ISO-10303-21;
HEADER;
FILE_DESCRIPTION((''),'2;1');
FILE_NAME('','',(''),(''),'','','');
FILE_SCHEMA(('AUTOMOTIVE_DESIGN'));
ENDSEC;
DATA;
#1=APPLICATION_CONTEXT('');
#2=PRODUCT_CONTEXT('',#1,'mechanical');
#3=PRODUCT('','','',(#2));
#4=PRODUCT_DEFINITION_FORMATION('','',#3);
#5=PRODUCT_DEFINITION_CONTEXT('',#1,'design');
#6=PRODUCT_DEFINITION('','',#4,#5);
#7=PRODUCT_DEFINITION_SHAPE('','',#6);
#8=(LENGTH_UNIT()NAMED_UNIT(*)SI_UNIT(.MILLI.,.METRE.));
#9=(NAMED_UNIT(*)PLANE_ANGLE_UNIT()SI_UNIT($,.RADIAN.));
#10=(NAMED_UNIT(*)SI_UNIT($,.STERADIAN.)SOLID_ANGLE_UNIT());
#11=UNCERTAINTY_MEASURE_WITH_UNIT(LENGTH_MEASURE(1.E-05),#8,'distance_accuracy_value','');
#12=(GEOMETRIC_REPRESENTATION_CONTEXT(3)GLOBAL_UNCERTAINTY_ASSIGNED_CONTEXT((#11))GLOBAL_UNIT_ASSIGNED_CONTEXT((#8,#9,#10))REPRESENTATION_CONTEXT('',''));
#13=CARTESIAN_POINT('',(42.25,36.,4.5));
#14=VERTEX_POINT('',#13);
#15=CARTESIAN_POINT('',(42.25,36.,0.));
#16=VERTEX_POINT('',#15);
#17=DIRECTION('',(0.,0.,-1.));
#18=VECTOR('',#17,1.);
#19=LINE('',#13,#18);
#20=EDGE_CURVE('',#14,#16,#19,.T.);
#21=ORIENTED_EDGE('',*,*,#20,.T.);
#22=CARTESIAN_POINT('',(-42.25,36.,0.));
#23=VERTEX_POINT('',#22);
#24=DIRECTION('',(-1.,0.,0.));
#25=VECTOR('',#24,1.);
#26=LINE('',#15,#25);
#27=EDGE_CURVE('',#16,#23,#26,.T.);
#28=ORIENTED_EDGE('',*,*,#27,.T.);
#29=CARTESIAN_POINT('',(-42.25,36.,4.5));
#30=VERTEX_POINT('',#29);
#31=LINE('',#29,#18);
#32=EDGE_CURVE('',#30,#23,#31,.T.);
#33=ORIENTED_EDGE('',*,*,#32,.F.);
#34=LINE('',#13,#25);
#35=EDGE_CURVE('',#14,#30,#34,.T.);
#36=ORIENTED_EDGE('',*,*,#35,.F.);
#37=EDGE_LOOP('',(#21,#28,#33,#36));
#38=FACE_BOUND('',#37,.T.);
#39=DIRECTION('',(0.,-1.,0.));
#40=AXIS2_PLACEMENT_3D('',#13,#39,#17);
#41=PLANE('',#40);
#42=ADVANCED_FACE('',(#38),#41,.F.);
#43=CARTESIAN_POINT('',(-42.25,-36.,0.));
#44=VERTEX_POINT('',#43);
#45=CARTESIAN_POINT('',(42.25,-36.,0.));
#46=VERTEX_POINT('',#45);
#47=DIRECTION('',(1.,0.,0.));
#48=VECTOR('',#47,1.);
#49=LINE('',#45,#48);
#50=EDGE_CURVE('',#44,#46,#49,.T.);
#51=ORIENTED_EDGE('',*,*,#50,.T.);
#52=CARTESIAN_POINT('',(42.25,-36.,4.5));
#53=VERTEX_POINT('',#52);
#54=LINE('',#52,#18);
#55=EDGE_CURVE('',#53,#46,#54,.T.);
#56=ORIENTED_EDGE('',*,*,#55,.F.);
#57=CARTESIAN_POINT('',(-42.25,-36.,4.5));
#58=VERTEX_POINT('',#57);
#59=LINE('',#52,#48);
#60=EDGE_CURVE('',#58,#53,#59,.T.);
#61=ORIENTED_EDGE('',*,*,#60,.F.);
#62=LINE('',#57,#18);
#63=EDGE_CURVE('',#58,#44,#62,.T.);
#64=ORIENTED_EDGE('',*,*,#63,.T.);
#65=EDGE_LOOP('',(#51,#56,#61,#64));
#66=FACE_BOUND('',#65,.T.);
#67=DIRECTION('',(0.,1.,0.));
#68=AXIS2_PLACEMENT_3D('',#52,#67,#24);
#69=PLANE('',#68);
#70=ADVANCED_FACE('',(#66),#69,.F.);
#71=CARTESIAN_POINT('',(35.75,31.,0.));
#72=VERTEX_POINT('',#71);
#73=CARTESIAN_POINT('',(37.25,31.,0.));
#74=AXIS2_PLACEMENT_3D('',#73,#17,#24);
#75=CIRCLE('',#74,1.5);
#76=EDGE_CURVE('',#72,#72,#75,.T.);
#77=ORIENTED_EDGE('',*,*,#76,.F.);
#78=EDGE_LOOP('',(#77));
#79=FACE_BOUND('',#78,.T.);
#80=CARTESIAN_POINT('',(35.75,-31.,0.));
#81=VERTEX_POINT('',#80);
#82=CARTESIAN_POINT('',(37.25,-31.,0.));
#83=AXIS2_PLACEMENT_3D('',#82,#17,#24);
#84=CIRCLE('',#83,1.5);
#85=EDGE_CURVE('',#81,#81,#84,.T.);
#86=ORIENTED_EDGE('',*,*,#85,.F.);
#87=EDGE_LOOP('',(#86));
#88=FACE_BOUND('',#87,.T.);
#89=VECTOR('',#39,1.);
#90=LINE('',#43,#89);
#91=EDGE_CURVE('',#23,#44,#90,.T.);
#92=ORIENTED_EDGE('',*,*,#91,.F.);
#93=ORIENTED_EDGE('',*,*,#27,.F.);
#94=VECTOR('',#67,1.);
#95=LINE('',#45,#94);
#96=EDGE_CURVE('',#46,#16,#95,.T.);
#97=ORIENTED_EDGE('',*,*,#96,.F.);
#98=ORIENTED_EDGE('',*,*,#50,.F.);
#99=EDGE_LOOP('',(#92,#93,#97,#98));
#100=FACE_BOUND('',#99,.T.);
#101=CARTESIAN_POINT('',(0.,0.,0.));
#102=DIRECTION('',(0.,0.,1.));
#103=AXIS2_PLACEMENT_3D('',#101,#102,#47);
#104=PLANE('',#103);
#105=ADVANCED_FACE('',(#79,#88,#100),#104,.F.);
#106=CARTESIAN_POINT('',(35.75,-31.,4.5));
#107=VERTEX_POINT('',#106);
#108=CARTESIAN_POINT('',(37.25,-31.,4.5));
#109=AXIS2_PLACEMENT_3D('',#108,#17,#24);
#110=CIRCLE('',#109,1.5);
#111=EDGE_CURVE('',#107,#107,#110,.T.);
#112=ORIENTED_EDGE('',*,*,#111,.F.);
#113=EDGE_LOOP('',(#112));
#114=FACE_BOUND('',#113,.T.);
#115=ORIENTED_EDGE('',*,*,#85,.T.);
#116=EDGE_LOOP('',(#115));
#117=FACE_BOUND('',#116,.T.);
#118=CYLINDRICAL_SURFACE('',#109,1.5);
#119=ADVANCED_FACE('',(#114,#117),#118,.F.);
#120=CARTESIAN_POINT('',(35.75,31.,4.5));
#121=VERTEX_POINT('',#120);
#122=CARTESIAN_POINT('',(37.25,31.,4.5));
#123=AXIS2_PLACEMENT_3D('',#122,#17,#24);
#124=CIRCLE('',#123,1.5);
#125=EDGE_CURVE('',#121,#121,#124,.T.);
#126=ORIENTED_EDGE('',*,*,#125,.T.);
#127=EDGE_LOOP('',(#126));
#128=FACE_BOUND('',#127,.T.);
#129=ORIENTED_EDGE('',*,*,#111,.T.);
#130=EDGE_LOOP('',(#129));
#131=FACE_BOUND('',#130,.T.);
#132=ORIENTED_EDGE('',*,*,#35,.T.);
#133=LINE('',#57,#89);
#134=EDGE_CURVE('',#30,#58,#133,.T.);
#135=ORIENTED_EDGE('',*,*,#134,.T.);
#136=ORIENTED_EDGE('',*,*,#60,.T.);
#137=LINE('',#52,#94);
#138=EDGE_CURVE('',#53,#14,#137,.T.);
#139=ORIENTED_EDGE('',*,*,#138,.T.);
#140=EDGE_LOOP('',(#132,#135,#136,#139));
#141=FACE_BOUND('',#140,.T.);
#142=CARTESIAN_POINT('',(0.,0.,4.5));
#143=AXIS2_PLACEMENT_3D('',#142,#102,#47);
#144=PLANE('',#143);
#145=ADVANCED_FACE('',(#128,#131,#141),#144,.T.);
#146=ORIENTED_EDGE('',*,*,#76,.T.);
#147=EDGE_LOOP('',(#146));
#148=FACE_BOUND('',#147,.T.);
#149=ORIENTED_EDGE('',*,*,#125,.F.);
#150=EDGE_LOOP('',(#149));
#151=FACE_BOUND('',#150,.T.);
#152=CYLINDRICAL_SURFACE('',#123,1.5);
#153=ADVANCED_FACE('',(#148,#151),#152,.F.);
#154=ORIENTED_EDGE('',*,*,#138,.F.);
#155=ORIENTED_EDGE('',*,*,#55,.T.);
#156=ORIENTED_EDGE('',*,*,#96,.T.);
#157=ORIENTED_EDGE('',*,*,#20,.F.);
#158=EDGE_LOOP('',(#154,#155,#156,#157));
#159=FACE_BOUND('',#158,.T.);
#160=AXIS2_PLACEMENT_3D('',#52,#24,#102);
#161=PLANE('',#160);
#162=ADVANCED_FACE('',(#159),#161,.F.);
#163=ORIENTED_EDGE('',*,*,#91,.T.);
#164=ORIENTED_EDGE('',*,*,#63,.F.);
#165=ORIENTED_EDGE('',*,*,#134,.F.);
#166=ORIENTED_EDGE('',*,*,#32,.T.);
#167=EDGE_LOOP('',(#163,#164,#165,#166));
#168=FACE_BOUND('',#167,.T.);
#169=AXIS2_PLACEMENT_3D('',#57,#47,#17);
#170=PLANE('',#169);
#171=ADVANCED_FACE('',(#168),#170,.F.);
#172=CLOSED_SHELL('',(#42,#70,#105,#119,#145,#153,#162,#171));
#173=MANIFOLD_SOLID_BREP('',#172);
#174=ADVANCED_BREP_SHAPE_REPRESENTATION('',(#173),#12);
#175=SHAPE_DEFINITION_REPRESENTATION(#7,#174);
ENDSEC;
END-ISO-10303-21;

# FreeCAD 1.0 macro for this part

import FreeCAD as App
import Part
import Sketcher

V = App.Vector


def add_polygon(sketch, points):
    """Adds a closed chain of lines whose ends are joined by coincident constraints."""
    first, n = sketch.GeometryCount, len(points)
    for a, b in zip(points, points[1:] + points[:1]):
        sketch.addGeometry(Part.LineSegment(App.Vector(*a, 0), App.Vector(*b, 0)), False)
    for i in range(n):
        sketch.addConstraint(Sketcher.Constraint("Coincident", first + i, 2, first + (i + 1) % n, 1))

doc = App.newDocument("Part")
body = doc.addObject("PartDesign::Body", "Body")

# Sketch on XY plane
sketch1 = body.newObject("Sketcher::SketchObject", "Sketch")
sketch1.AttachmentSupport = (doc.getObject("XY_Plane"), [""])
sketch1.MapMode = "FlatFace"
add_polygon(sketch1, [(-42, 36), (-42, -36), (42, -36), (42, 36)])  # lines 0-3
sketch1.addConstraint([
    Sketcher.Constraint("Vertical", 0),
    Sketcher.Constraint("Horizontal", 1),
    Sketcher.Constraint("Vertical", 2),
    Sketcher.Constraint("Horizontal", 3),
    Sketcher.Constraint("Symmetric", 0, 2, 2, 2, -1, 1),
    Sketcher.Constraint("DistanceY", 0, 2, 0, 1, 72.0),
    Sketcher.Constraint("DistanceX", 1, 1, 1, 2, 84.5),
])
pad1 = body.newObject("PartDesign::Pad", "Pad")
pad1.Profile = sketch1
pad1.Length = 4.5

# Sketch on XY plane
sketch2 = body.newObject("Sketcher::SketchObject", "Sketch001")
sketch2.AttachmentSupport = (doc.getObject("XY_Plane"), [""])
sketch2.MapMode = "FlatFace"
sketch2.addGeometry([
    Part.Circle(V(37.2, 31, 0), V(0, 0, 1), 1.5),
    Part.Circle(V(37.2, -31, 0), V(0, 0, 1), 1.5),
], False)
sketch2.addConstraint([
    Sketcher.Constraint("Equal", 0, 1),
    Sketcher.Constraint("Symmetric", 0, 3, 1, 3, -1),
    Sketcher.Constraint("Diameter", 0, 3.0),
    Sketcher.Constraint("DistanceY", -1, 1, 0, 3, 31.0),
    Sketcher.Constraint("DistanceX", -1, 1, 0, 3, 37.25),
])
pocket1 = body.newObject("PartDesign::Pocket", "Pocket")
pocket1.Profile = sketch2
pocket1.Type = "ThroughAll"
pocket1.Reversed = True

doc.recompute()
